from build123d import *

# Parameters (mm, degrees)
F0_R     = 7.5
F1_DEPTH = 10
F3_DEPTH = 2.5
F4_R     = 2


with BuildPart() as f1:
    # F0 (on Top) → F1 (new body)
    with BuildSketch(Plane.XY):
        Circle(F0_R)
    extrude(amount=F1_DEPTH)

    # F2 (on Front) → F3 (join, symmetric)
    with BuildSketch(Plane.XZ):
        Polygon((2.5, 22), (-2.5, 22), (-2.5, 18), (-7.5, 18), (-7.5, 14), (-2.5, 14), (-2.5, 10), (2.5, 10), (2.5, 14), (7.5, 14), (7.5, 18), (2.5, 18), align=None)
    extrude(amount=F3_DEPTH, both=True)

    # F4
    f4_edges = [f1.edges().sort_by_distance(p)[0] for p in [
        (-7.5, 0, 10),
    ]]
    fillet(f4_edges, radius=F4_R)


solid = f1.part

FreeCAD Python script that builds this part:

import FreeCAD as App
import Part
import Sketcher

V = App.Vector


def edges_at(feature, points):
    """Names of the edges that pass closest to the given points."""
    edges = feature.Shape.Edges
    near = lambda p: min(range(len(edges)), key=lambda i: edges[i].distToShape(Part.Vertex(*p))[0])
    return sorted({f"Edge{near(p) + 1}" for p in points})

doc = App.newDocument("Part")
body = doc.addObject("PartDesign::Body", "Body")

sketch1 = body.newObject("Sketcher::SketchObject", "Sketch")
sketch1.AttachmentSupport = (doc.getObject("XY_Plane"), [""])
sketch1.MapMode = "FlatFace"
sketch1.addGeometry(Part.Circle(V(0, 0, 0), V(0, 0, 1), 8), False)
sketch1.addConstraint(Sketcher.Constraint("Coincident", 0, 3, -1, 1))
sketch1.addConstraint(Sketcher.Constraint("Diameter", 0, 15.0))
pad1 = body.newObject("PartDesign::Pad", "Pad")
pad1.Profile = sketch1
pad1.Length = 10

sketch2 = body.newObject("Sketcher::SketchObject", "Sketch001")
sketch2.AttachmentSupport = (doc.getObject("XZ_Plane"), [""])
sketch2.MapMode = "FlatFace"
sketch2.addGeometry(Part.LineSegment(V(2.5, 22, 0), V(-2.5, 22, 0)), False)
sketch2.addGeometry(Part.LineSegment(V(-2.5, 22, 0), V(-2.5, 18, 0)), False)
sketch2.addGeometry(Part.LineSegment(V(-2.5, 18, 0), V(-7.5, 18, 0)), False)
sketch2.addGeometry(Part.LineSegment(V(-7.5, 18, 0), V(-7.5, 14, 0)), False)
sketch2.addGeometry(Part.LineSegment(V(-7.5, 14, 0), V(-2.5, 14, 0)), False)
sketch2.addGeometry(Part.LineSegment(V(-2.5, 14, 0), V(-2.5, 10, 0)), False)
sketch2.addGeometry(Part.LineSegment(V(-2.5, 10, 0), V(2.5, 10, 0)), False)
sketch2.addGeometry(Part.LineSegment(V(2.5, 10, 0), V(2.5, 14, 0)), False)
sketch2.addGeometry(Part.LineSegment(V(2.5, 14, 0), V(7.5, 14, 0)), False)
sketch2.addGeometry(Part.LineSegment(V(7.5, 14, 0), V(7.5, 18, 0)), False)
sketch2.addGeometry(Part.LineSegment(V(7.5, 18, 0), V(2.5, 18, 0)), False)
sketch2.addGeometry(Part.LineSegment(V(2.5, 18, 0), V(2.5, 22, 0)), False)
sketch2.addConstraint(Sketcher.Constraint("Coincident", 0, 2, 1, 1))
sketch2.addConstraint(Sketcher.Constraint("Coincident", 1, 2, 2, 1))
sketch2.addConstraint(Sketcher.Constraint("Coincident", 2, 2, 3, 1))
sketch2.addConstraint(Sketcher.Constraint("Coincident", 3, 2, 4, 1))
sketch2.addConstraint(Sketcher.Constraint("Coincident", 4, 2, 5, 1))
sketch2.addConstraint(Sketcher.Constraint("Coincident", 5, 2, 6, 1))
sketch2.addConstraint(Sketcher.Constraint("Coincident", 6, 2, 7, 1))
sketch2.addConstraint(Sketcher.Constraint("Coincident", 7, 2, 8, 1))
sketch2.addConstraint(Sketcher.Constraint("Coincident", 8, 2, 9, 1))
sketch2.addConstraint(Sketcher.Constraint("Coincident", 9, 2, 10, 1))
sketch2.addConstraint(Sketcher.Constraint("Coincident", 10, 2, 11, 1))
sketch2.addConstraint(Sketcher.Constraint("Coincident", 11, 2, 0, 1))
sketch2.addConstraint(Sketcher.Constraint("Horizontal", 0))
sketch2.addConstraint(Sketcher.Constraint("Vertical", 1))
sketch2.addConstraint(Sketcher.Constraint("Horizontal", 2))
sketch2.addConstraint(Sketcher.Constraint("Vertical", 3))
sketch2.addConstraint(Sketcher.Constraint("Horizontal", 4))
sketch2.addConstraint(Sketcher.Constraint("Vertical", 5))
sketch2.addConstraint(Sketcher.Constraint("Horizontal", 6))
sketch2.addConstraint(Sketcher.Constraint("Vertical", 7))
sketch2.addConstraint(Sketcher.Constraint("Horizontal", 8))
sketch2.addConstraint(Sketcher.Constraint("Vertical", 9))
sketch2.addConstraint(Sketcher.Constraint("Horizontal", 10))
sketch2.addConstraint(Sketcher.Constraint("Vertical", 11))
sketch2.addConstraint(Sketcher.Constraint("Symmetric", 4, 2, 7, 2, -2))
sketch2.addConstraint(Sketcher.Constraint("Symmetric", 2, 2, 9, 2, -2))
sketch2.addConstraint(Sketcher.Constraint("Vertical", 1, 2, 4, 2))
sketch2.addConstraint(Sketcher.Constraint("Vertical", 7, 2, 10, 2))
sketch2.addConstraint(Sketcher.Constraint("Equal", 0, 2))
sketch2.addConstraint(Sketcher.Constraint("Equal", 1, 3))
sketch2.addConstraint(Sketcher.Constraint("Equal", 3, 5))
sketch2.addConstraint(Sketcher.Constraint("DistanceX", 0, 2, 0, 1, 5.0))
sketch2.addConstraint(Sketcher.Constraint("DistanceY", 1, 2, 1, 1, 4.0))
sketch2.addConstraint(Sketcher.Constraint("DistanceY", -1, 1, 0, 2, 22.0))
pad2 = body.newObject("PartDesign::Pad", "Pad001")
pad2.Profile = sketch2
pad2.Length = 5
pad2.Midplane = True
doc.recompute()

fillet = body.newObject("PartDesign::Fillet", "Fillet")
fillet.Base = (pad2, edges_at(pad2, [(-7.5, 0, 10)]))
fillet.Radius = 2

doc.recompute()
